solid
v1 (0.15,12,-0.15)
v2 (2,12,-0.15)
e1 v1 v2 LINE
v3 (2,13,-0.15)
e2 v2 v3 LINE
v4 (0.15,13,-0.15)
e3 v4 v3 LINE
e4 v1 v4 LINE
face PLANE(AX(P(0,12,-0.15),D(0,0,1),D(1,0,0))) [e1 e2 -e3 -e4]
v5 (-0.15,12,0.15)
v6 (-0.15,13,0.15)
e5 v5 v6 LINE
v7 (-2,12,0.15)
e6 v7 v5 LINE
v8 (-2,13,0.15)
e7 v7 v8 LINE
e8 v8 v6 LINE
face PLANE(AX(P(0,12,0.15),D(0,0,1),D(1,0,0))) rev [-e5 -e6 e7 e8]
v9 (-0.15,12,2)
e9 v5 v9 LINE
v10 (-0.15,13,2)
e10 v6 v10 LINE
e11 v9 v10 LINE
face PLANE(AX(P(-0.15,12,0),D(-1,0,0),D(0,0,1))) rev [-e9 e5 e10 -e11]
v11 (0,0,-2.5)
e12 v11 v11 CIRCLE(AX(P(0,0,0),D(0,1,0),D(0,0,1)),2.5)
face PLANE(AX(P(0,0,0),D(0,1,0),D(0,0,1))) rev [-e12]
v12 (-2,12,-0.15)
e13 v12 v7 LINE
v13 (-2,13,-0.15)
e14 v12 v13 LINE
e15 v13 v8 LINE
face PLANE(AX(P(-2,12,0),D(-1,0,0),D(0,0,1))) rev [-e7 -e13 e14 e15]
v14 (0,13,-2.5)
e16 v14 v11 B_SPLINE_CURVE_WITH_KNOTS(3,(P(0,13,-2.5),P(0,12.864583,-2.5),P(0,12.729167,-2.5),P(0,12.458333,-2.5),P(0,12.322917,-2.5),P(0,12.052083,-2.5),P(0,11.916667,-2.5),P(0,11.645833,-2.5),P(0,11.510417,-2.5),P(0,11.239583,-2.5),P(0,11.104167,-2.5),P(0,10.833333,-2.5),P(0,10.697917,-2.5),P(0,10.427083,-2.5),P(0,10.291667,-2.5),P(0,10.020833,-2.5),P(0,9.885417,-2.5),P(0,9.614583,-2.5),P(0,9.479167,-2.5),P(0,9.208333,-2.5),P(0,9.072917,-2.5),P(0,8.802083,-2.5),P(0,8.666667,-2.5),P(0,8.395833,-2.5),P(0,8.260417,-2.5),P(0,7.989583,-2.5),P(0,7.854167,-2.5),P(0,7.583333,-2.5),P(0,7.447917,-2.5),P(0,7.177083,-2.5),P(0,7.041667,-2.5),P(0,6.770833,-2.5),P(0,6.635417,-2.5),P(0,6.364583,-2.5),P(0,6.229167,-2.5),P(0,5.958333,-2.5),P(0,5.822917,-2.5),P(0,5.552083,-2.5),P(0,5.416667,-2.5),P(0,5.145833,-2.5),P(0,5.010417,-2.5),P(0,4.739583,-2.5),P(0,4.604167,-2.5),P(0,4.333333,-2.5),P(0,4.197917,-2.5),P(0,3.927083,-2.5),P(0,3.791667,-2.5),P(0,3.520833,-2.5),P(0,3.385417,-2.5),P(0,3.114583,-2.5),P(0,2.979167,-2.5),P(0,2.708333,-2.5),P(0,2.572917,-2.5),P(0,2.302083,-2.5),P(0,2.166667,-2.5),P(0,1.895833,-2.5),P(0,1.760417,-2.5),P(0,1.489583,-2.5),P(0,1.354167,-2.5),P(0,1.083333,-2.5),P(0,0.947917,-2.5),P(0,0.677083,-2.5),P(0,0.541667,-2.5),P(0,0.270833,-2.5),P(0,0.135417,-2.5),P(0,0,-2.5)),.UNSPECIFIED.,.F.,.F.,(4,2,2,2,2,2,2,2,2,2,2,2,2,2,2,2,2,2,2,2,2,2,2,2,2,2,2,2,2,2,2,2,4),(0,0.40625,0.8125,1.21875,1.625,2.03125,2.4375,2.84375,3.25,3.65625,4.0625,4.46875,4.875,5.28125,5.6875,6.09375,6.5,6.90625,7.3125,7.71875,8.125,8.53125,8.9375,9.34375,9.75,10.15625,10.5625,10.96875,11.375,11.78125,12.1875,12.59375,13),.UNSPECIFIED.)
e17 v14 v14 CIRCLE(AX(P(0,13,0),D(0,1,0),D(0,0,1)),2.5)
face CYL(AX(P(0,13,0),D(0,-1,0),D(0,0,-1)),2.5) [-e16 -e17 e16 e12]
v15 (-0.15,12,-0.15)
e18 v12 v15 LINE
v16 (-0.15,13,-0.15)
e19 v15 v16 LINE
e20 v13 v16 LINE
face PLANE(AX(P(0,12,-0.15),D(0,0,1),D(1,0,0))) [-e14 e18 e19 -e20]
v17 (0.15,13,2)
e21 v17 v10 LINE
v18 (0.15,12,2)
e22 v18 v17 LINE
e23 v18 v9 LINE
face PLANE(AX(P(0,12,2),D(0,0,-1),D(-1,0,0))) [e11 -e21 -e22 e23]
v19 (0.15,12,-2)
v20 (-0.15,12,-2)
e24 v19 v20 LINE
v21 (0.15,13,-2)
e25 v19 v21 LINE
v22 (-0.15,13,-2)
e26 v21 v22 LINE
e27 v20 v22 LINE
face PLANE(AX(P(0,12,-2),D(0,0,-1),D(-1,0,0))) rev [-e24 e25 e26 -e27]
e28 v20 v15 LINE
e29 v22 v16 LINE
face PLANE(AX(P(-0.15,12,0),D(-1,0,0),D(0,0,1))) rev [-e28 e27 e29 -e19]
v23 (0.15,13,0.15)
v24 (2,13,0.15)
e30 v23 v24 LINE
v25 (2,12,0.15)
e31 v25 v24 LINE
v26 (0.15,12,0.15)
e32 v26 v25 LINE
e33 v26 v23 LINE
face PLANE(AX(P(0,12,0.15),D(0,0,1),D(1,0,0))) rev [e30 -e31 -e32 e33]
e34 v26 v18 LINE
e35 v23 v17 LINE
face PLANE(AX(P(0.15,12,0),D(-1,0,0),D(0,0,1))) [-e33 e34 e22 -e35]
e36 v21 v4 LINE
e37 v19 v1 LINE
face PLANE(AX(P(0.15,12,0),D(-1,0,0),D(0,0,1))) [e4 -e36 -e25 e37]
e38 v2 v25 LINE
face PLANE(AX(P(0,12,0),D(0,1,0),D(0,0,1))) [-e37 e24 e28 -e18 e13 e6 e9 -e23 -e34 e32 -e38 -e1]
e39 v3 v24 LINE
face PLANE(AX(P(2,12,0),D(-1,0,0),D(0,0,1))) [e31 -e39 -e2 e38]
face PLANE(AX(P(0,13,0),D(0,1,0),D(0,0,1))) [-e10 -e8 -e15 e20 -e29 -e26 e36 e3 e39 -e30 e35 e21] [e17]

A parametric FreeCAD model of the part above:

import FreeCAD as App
import Part
import Sketcher
Q = App.Units.Quantity

doc = App.newDocument("Part")
params = doc.addObject("Spreadsheet::Sheet", "Params")
for row, (alias, value) in enumerate([
    ("sketch1_diameter", "5 mm"),
    ("pad1_length", "13 mm"),
    ("sketch2_width", "0.3 mm"),
    ("pocket1_length", "1 mm"),
], start=1):
    params.set(f"A{row}", alias)
    params.set(f"B{row}", "=" + value)
    params.setAlias(f"B{row}", alias)

body = doc.addObject("PartDesign::Body", "Body")

# Sketch on XZ plane
sketch1 = doc.addObject("Sketcher::SketchObject", "Sketch")
body.addObject(sketch1)
sketch1.AttachmentSupport = (doc.XZ_Plane, [""])
sketch1.MapMode = "FlatFace"
sketch1.addGeometry(Part.Circle(App.Vector(0, 0, 0), App.Vector(0, 0, 1), 2.5), False)
sketch1.addConstraint(Sketcher.Constraint("Coincident", 0, 3, -1, 1))
sketch1.addConstraint(Sketcher.Constraint("Diameter", 0, Q("5 mm")))
sketch1.setExpression("Constraints[1]", "Params.sketch1_diameter")
pad1 = doc.addObject("PartDesign::Pad", "Pad")
body.addObject(pad1)
pad1.Profile = sketch1
pad1.setExpression("Length", "Params.pad1_length")
pad1.Reversed = True

# Sketch on XZ plane
sketch2 = doc.addObject("Sketcher::SketchObject", "Sketch001")
body.addObject(sketch2)
sketch2.AttachmentSupport = (doc.XZ_Plane, [""])
sketch2.MapMode = "FlatFace"
sketch2.AttachmentOffset = App.Placement(App.Vector(0, 0, -13), App.Rotation())
sketch2.addGeometry(Part.LineSegment(App.Vector(2, 0.15, 0), App.Vector(2, -0.15, 0)), False)
sketch2.addGeometry(Part.LineSegment(App.Vector(2, -0.15, 0), App.Vector(0.15, -0.15, 0)), False)
sketch2.addGeometry(Part.LineSegment(App.Vector(0.15, -0.15, 0), App.Vector(0.15, -2, 0)), False)
sketch2.addGeometry(Part.LineSegment(App.Vector(0.15, -2, 0), App.Vector(-0.15, -2, 0)), False)
sketch2.addGeometry(Part.LineSegment(App.Vector(-0.15, -2, 0), App.Vector(-0.15, -0.15, 0)), False)
sketch2.addGeometry(Part.LineSegment(App.Vector(-0.15, -0.15, 0), App.Vector(-2, -0.15, 0)), False)
sketch2.addGeometry(Part.LineSegment(App.Vector(-2, -0.15, 0), App.Vector(-2, 0.15, 0)), False)
sketch2.addGeometry(Part.LineSegment(App.Vector(-2, 0.15, 0), App.Vector(-0.15, 0.15, 0)), False)
sketch2.addGeometry(Part.LineSegment(App.Vector(-0.15, 0.15, 0), App.Vector(-0.15, 2, 0)), False)
sketch2.addGeometry(Part.LineSegment(App.Vector(-0.15, 2, 0), App.Vector(0.15, 2, 0)), False)
sketch2.addGeometry(Part.LineSegment(App.Vector(0.15, 2, 0), App.Vector(0.15, 0.15, 0)), False)
sketch2.addGeometry(Part.LineSegment(App.Vector(0.15, 0.15, 0), App.Vector(2, 0.15, 0)), False)
sketch2.addConstraint(Sketcher.Constraint("Coincident", 0, 2, 1, 1))
sketch2.addConstraint(Sketcher.Constraint("Coincident", 1, 2, 2, 1))
sketch2.addConstraint(Sketcher.Constraint("Coincident", 2, 2, 3, 1))
sketch2.addConstraint(Sketcher.Constraint("Coincident", 3, 2, 4, 1))
sketch2.addConstraint(Sketcher.Constraint("Coincident", 4, 2, 5, 1))
sketch2.addConstraint(Sketcher.Constraint("Coincident", 5, 2, 6, 1))
sketch2.addConstraint(Sketcher.Constraint("Coincident", 6, 2, 7, 1))
sketch2.addConstraint(Sketcher.Constraint("Coincident", 7, 2, 8, 1))
sketch2.addConstraint(Sketcher.Constraint("Coincident", 8, 2, 9, 1))
sketch2.addConstraint(Sketcher.Constraint("Coincident", 9, 2, 10, 1))
sketch2.addConstraint(Sketcher.Constraint("Coincident", 10, 2, 11, 1))
sketch2.addConstraint(Sketcher.Constraint("Coincident", 11, 2, 0, 1))
sketch2.addConstraint(Sketcher.Constraint("Vertical", 0))
sketch2.addConstraint(Sketcher.Constraint("Horizontal", 1))
sketch2.addConstraint(Sketcher.Constraint("Vertical", 2))
sketch2.addConstraint(Sketcher.Constraint("Horizontal", 3))
sketch2.addConstraint(Sketcher.Constraint("Vertical", 4))
sketch2.addConstraint(Sketcher.Constraint("Horizontal", 5))
sketch2.addConstraint(Sketcher.Constraint("Vertical", 6))
sketch2.addConstraint(Sketcher.Constraint("Horizontal", 7))
sketch2.addConstraint(Sketcher.Constraint("Vertical", 8))
sketch2.addConstraint(Sketcher.Constraint("Horizontal", 9))
sketch2.addConstraint(Sketcher.Constraint("Vertical", 10))
sketch2.addConstraint(Sketcher.Constraint("Horizontal", 11))
sketch2.addConstraint(Sketcher.Constraint("Symmetric", 0, 2, 6, 2, -1, 1))
sketch2.addConstraint(Sketcher.Constraint("Symmetric", 2, 2, 8, 2, -1, 1))
sketch2.addConstraint(Sketcher.Constraint("Symmetric", 4, 2, 10, 2, -1, 1))
sketch2.addConstraint(Sketcher.Constraint("Symmetric", 1, 2, 4, 2, -2))
sketch2.addConstraint(Sketcher.Constraint("Equal", 9, 0))
sketch2.addConstraint(Sketcher.Constraint("Equal", 11, 2))
sketch2.addConstraint(Sketcher.Constraint("DistanceX", 3, 2, 3, 1, Q("0.3 mm")))
sketch2.addConstraint(Sketcher.Constraint("DistanceX", -1, 1, 0, 2, Q("2 mm")))
sketch2.setExpression("Constraints[30]", "Params.sketch2_width")
pocket1 = doc.addObject("PartDesign::Pocket", "Pocket")
body.addObject(pocket1)
pocket1.Profile = sketch2
pocket1.setExpression("Length", "Params.pocket1_length")
pocket1.Reversed = True

doc.recompute()
